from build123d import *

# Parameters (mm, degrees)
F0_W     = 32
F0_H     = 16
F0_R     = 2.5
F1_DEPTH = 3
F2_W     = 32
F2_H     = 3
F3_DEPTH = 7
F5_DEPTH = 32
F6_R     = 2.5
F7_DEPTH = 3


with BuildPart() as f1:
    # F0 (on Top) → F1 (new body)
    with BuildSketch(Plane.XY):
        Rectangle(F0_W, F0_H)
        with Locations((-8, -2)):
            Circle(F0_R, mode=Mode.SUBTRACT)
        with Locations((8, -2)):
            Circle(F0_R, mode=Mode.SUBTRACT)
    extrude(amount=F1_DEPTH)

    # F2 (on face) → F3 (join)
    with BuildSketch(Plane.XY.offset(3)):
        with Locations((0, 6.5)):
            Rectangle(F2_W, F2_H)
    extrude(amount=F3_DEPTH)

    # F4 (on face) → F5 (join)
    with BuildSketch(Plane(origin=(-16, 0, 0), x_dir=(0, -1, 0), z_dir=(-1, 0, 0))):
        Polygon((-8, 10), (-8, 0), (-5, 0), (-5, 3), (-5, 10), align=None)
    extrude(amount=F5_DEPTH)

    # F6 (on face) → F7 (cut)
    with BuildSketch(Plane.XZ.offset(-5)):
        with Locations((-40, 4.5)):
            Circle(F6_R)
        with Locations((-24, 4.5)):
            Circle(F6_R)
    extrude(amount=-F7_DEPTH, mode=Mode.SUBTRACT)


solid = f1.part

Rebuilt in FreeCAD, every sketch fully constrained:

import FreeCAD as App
import Part
import Sketcher

V = App.Vector


def add_polygon(sketch, points):
    """Adds a closed chain of lines whose ends are joined by coincident constraints."""
    first, n = sketch.GeometryCount, len(points)
    for a, b in zip(points, points[1:] + points[:1]):
        sketch.addGeometry(Part.LineSegment(App.Vector(*a, 0), App.Vector(*b, 0)), False)
    for i in range(n):
        sketch.addConstraint(Sketcher.Constraint("Coincident", first + i, 2, first + (i + 1) % n, 1))

doc = App.newDocument("Part")
params = doc.addObject("Spreadsheet::Sheet", "Params")
for row, (alias, value) in enumerate([
    ("sketch1_diameter", "5 mm"),
    ("sketch1_width", "32 mm"),
    ("sketch1_height", "16 mm"),
    ("pad1_length", "3 mm"),
    ("sketch2_width", "32 mm"),
    ("sketch2_height", "3 mm"),
    ("pad2_length", "7 mm"),
    ("sketch3_width", "3 mm"),
    ("sketch3_height", "10 mm"),
    ("pad3_length", "32 mm"),
    ("sketch4_diameter", "5 mm"),
    ("pocket1_length", "3 mm"),
], start=1):
    params.set(f"A{row}", alias)
    params.set(f"B{row}", "=" + value)
    params.setAlias(f"B{row}", alias)

body = doc.addObject("PartDesign::Body", "Body")

# Sketch on XY plane
sketch1 = doc.addObject("Sketcher::SketchObject", "Sketch")
body.addObject(sketch1)
sketch1.AttachmentSupport = (doc.XY_Plane, [""])
sketch1.MapMode = "FlatFace"
add_polygon(sketch1, [(-16, 8), (-16, -8), (16, -8), (16, 8)])  # lines 0-3
sketch1.addGeometry(Part.Circle(V(-8, -2, 0), V(0, 0, 1), 2.5), False)  # 4
sketch1.addGeometry(Part.Circle(V(8, -2, 0), V(0, 0, 1), 2.5), False)  # 5
sketch1.addConstraint(Sketcher.Constraint("Vertical", 0))
sketch1.addConstraint(Sketcher.Constraint("Horizontal", 1))
sketch1.addConstraint(Sketcher.Constraint("Vertical", 2))
sketch1.addConstraint(Sketcher.Constraint("Horizontal", 3))
sketch1.addConstraint(Sketcher.Constraint("Equal", 4, 5))
sketch1.addConstraint(Sketcher.Constraint("Symmetric", 0, 2, 2, 2, -1, 1))
sketch1.addConstraint(Sketcher.Constraint("Symmetric", 4, 3, 5, 3, -2))
sketch1.addConstraint(Sketcher.Constraint("Diameter", 4, 5.0))
sketch1.addConstraint(Sketcher.Constraint("DistanceX", 1, 1, 1, 2, 32.0))
sketch1.addConstraint(Sketcher.Constraint("DistanceY", 0, 2, 0, 1, 16.0))
sketch1.addConstraint(Sketcher.Constraint("DistanceX", 4, 3, -1, 1, 8.0))
sketch1.addConstraint(Sketcher.Constraint("DistanceY", 4, 3, -1, 1, 2.0))
sketch1.setExpression("Constraints[11]", "Params.sketch1_diameter")
sketch1.setExpression("Constraints[12]", "Params.sketch1_width")
sketch1.setExpression("Constraints[13]", "Params.sketch1_height")
pad1 = doc.addObject("PartDesign::Pad", "Pad")
body.addObject(pad1)
pad1.Profile = sketch1
pad1.setExpression("Length", "Params.pad1_length")

# Sketch on XY plane
sketch2 = doc.addObject("Sketcher::SketchObject", "Sketch001")
body.addObject(sketch2)
sketch2.AttachmentSupport = (doc.XY_Plane, [""])
sketch2.MapMode = "FlatFace"
sketch2.AttachmentOffset = App.Placement(V(0, 0, 3), App.Rotation())
add_polygon(sketch2, [(-16, 8), (-16, 5), (16, 5), (16, 8)])  # lines 0-3
sketch2.addConstraint(Sketcher.Constraint("Vertical", 0))
sketch2.addConstraint(Sketcher.Constraint("Horizontal", 1))
sketch2.addConstraint(Sketcher.Constraint("Vertical", 2))
sketch2.addConstraint(Sketcher.Constraint("Horizontal", 3))
sketch2.addConstraint(Sketcher.Constraint("DistanceX", 1, 1, 1, 2, 32.0))
sketch2.addConstraint(Sketcher.Constraint("DistanceY", 0, 2, 0, 1, 3.0))
sketch2.addConstraint(Sketcher.Constraint("DistanceX", 0, 2, -1, 1, 16.0))
sketch2.addConstraint(Sketcher.Constraint("DistanceY", -1, 1, 0, 2, 5.0))
sketch2.setExpression("Constraints[8]", "Params.sketch2_width")
sketch2.setExpression("Constraints[9]", "Params.sketch2_height")
pad2 = doc.addObject("PartDesign::Pad", "Pad001")
body.addObject(pad2)
pad2.Profile = sketch2
pad2.setExpression("Length", "Params.pad2_length")

# Sketch on YZ plane
sketch3 = doc.addObject("Sketcher::SketchObject", "Sketch002")
body.addObject(sketch3)
sketch3.AttachmentSupport = (doc.YZ_Plane, [""])
sketch3.MapMode = "FlatFace"
sketch3.AttachmentOffset = App.Placement(V(0, 0, -16), App.Rotation())
add_polygon(sketch3, [(8, 10), (8, 0), (5, 0), (5, 10)])  # lines 0-3
sketch3.addConstraint(Sketcher.Constraint("Vertical", 0))
sketch3.addConstraint(Sketcher.Constraint("Horizontal", 1))
sketch3.addConstraint(Sketcher.Constraint("Vertical", 2))
sketch3.addConstraint(Sketcher.Constraint("Horizontal", 3))
sketch3.addConstraint(Sketcher.Constraint("PointOnObject", 0, 2, -1))
sketch3.addConstraint(Sketcher.Constraint("DistanceX", 1, 2, 1, 1, 3.0))
sketch3.addConstraint(Sketcher.Constraint("DistanceY", 0, 2, 0, 1, 10.0))
sketch3.addConstraint(Sketcher.Constraint("DistanceX", -1, 1, 0, 2, 8.0))
sketch3.setExpression("Constraints[9]", "Params.sketch3_width")
sketch3.setExpression("Constraints[10]", "Params.sketch3_height")
pad3 = doc.addObject("PartDesign::Pad", "Pad002")
body.addObject(pad3)
pad3.Profile = sketch3
pad3.setExpression("Length", "Params.pad3_length")
pad3.Reversed = True

# Sketch on XZ plane
sketch4 = doc.addObject("Sketcher::SketchObject", "Sketch003")
body.addObject(sketch4)
sketch4.AttachmentSupport = (doc.XZ_Plane, [""])
sketch4.MapMode = "FlatFace"
sketch4.AttachmentOffset = App.Placement(V(0, 0, -5), App.Rotation())
sketch4.addGeometry(Part.Circle(V(-40, 4.5, 0), V(0, 0, 1), 2.5), False)
sketch4.addGeometry(Part.Circle(V(-24, 4.5, 0), V(0, 0, 1), 2.5), False)
sketch4.addConstraint(Sketcher.Constraint("Equal", 0, 1))
sketch4.addConstraint(Sketcher.Constraint("Horizontal", 0, 3, 1, 3))
sketch4.addConstraint(Sketcher.Constraint("Diameter", 0, 5.0))
sketch4.addConstraint(Sketcher.Constraint("DistanceX", 0, 3, -1, 1, 40.0))
sketch4.addConstraint(Sketcher.Constraint("DistanceX", 1, 3, -1, 1, 24.0))
sketch4.addConstraint(Sketcher.Constraint("DistanceY", -1, 1, 0, 3, 4.5))
sketch4.setExpression("Constraints[2]", "Params.sketch4_diameter")
pocket1 = doc.addObject("PartDesign::Pocket", "Pocket")
body.addObject(pocket1)
pocket1.Profile = sketch4
pocket1.setExpression("Length", "Params.pocket1_length")

doc.recompute()
